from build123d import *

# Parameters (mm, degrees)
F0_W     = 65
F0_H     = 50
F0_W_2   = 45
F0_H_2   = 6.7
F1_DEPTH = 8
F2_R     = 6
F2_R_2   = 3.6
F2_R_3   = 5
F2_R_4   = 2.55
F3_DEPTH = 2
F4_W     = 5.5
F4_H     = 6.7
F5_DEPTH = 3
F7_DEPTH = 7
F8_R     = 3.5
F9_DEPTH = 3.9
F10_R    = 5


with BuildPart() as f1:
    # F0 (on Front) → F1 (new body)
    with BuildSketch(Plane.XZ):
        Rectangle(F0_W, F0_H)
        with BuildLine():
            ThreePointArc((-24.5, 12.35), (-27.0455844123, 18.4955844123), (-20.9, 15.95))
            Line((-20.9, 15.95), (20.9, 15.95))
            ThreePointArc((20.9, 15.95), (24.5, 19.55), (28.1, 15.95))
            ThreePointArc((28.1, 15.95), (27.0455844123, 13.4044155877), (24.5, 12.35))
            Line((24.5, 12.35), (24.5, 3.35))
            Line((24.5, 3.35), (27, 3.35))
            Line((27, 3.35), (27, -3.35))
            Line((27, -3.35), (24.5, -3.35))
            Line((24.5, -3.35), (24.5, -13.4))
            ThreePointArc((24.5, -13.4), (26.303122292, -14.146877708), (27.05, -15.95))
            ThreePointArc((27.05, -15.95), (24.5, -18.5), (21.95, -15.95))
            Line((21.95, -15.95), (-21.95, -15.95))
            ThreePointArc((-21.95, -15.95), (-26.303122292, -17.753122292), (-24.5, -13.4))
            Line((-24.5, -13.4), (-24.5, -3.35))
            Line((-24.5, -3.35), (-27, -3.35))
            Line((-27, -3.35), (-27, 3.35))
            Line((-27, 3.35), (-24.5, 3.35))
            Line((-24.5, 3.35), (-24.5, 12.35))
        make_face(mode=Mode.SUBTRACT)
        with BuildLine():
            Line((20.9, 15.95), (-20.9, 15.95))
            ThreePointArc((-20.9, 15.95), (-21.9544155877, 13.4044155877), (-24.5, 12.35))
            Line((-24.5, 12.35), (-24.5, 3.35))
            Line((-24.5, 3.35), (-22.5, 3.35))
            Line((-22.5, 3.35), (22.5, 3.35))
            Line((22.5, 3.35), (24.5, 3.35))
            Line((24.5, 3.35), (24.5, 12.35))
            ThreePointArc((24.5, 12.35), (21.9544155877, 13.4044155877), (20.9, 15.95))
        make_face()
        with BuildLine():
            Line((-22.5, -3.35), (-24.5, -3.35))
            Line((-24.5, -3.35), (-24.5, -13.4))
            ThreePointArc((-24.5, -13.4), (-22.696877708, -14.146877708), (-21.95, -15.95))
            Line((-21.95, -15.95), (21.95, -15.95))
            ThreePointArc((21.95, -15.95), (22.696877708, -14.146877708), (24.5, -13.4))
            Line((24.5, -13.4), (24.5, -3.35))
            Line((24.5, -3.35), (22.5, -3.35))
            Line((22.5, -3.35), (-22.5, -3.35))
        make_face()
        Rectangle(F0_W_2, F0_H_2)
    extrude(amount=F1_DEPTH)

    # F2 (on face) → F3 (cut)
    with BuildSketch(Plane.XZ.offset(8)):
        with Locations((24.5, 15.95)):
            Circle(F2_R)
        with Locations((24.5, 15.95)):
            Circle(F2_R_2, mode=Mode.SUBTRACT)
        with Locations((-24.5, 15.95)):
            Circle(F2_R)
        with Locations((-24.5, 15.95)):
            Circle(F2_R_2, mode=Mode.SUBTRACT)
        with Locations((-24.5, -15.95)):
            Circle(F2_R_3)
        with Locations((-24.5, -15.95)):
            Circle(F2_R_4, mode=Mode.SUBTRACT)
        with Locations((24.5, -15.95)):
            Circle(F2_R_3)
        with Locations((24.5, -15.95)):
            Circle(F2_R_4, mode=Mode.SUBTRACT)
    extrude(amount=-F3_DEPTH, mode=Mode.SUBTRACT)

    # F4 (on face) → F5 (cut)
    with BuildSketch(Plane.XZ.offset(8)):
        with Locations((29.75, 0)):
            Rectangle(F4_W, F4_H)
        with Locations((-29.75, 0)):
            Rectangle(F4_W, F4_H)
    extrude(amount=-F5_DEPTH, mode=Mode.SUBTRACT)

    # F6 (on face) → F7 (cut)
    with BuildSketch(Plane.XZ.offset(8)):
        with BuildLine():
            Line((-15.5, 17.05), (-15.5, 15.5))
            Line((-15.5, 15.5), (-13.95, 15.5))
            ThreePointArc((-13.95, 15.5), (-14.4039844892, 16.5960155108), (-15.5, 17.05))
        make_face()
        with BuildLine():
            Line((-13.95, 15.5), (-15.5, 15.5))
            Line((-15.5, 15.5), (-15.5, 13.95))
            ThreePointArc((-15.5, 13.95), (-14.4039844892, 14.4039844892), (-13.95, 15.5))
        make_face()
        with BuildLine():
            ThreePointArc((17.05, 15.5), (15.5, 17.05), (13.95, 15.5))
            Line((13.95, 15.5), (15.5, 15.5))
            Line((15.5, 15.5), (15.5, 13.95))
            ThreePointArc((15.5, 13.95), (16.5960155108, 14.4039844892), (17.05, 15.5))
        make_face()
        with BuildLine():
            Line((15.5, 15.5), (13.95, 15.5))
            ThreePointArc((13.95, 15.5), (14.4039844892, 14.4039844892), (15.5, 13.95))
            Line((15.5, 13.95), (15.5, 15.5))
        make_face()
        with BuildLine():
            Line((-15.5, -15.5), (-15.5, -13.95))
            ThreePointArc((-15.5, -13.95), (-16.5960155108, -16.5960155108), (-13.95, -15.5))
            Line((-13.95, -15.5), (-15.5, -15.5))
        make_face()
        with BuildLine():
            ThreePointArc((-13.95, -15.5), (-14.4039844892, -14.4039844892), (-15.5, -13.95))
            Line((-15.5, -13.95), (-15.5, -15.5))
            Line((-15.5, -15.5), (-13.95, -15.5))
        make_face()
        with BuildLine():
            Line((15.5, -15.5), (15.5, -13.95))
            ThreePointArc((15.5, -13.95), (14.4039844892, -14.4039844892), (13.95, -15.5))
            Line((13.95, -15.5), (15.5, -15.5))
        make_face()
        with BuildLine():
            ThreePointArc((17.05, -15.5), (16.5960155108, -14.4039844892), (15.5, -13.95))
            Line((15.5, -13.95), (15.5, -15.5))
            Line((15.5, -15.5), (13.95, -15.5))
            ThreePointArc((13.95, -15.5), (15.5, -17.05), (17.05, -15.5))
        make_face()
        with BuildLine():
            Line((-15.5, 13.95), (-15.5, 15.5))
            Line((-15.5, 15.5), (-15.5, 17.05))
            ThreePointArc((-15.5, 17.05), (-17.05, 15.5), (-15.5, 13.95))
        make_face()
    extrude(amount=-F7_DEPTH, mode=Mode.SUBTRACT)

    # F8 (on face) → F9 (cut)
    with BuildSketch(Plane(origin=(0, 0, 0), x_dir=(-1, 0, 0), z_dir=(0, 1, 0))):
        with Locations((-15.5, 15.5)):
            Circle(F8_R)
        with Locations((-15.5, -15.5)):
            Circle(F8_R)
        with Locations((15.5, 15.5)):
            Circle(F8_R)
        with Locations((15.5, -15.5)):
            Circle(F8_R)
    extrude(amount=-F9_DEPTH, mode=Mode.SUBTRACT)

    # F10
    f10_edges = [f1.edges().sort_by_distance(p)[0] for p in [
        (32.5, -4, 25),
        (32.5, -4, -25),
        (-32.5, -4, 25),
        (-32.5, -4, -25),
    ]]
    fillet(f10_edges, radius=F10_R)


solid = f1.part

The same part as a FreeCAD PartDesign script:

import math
import FreeCAD as App
import Part
import Sketcher

V = App.Vector


def edges_at(feature, points):
    """Names of the edges that pass closest to the given points."""
    edges = feature.Shape.Edges
    near = lambda p: min(range(len(edges)), key=lambda i: edges[i].distToShape(Part.Vertex(*p))[0])
    return sorted({f"Edge{near(p) + 1}" for p in points})

doc = App.newDocument("Part")
body = doc.addObject("PartDesign::Body", "Body")

# Sketch on XZ plane
sketch1 = body.newObject("Sketcher::SketchObject", "Sketch")
sketch1.AttachmentSupport = (doc.getObject("XZ_Plane"), [""])
sketch1.MapMode = "FlatFace"
sketch1.addGeometry([
    Part.LineSegment(V(-32.5, 25, 0), V(-32.5, -25, 0)),  # 0
    Part.LineSegment(V(-32.5, -25, 0), V(32.5, -25, 0)),  # 1
    Part.LineSegment(V(32.5, -25, 0), V(32.5, 25, 0)),  # 2
    Part.LineSegment(V(32.5, 25, 0), V(-32.5, 25, 0)),  # 3
    Part.ArcOfCircle(Part.Circle(V(-24.5, -15.95, 0), V(0, 0, 1), 2.55), math.radians(90), math.radians(360)),  # 4
    Part.ArcOfCircle(Part.Circle(V(-24.5, -15.95, 0), V(0, 0, 1), 2.55), math.radians(0), math.radians(90)),  # 5
    Part.ArcOfCircle(Part.Circle(V(24.5, -15.95, 0), V(0, 0, 1), 2.55), math.radians(0), math.radians(90)),  # 6
    Part.ArcOfCircle(Part.Circle(V(24.5, -15.95, 0), V(0, 0, 1), 2.55), math.radians(180), math.radians(360)),  # 7
    Part.ArcOfCircle(Part.Circle(V(24.5, -15.95, 0), V(0, 0, 1), 2.55), math.radians(90), math.radians(180)),  # 8
    Part.LineSegment(V(-27, -3.35, 0), V(-27, 3.35, 0)),  # 9
    Part.LineSegment(V(-27, 3.35, 0), V(-22.5, 3.35, 0)),  # 10
    Part.LineSegment(V(-22.5, 3.35, 0), V(-22.5, -3.35, 0)),  # 11
    Part.LineSegment(V(-22.5, -3.35, 0), V(-27, -3.35, 0)),  # 12
    Part.LineSegment(V(27, -3.35, 0), V(22.5, -3.35, 0)),  # 13
    Part.LineSegment(V(22.5, -3.35, 0), V(22.5, 3.35, 0)),  # 14
    Part.LineSegment(V(22.5, 3.35, 0), V(27, 3.35, 0)),  # 15
    Part.LineSegment(V(27, 3.35, 0), V(27, -3.35, 0)),  # 16
    Part.ArcOfCircle(Part.Circle(V(-24.5, 15.95, 0), V(0, 0, 1), 3.6), math.radians(0), math.radians(270)),  # 17
    Part.ArcOfCircle(Part.Circle(V(-24.5, 15.95, 0), V(0, 0, 1), 3.6), math.radians(-90), math.radians(0)),  # 18
    Part.ArcOfCircle(Part.Circle(V(24.5, 15.95, 0), V(0, 0, 1), 3.6), math.radians(-90), math.radians(0)),  # 19
    Part.ArcOfCircle(Part.Circle(V(24.5, 15.95, 0), V(0, 0, 1), 3.6), math.radians(180), math.radians(270)),  # 20
    Part.ArcOfCircle(Part.Circle(V(24.5, 15.95, 0), V(0, 0, 1), 3.6), math.radians(0), math.radians(180)),  # 21
], False)
sketch1.addConstraint([
    Sketcher.Constraint("Coincident", 0, 2, 1, 1),
    Sketcher.Constraint("Coincident", 1, 2, 2, 1),
    Sketcher.Constraint("Coincident", 2, 2, 3, 1),
    Sketcher.Constraint("Coincident", 3, 2, 0, 1),
    Sketcher.Constraint("Tangent", 4, 1, 5, 2),
    Sketcher.Constraint("Coincident", 5, 1, 4, 2),
    Sketcher.Constraint("Tangent", 6, 1, 7, 2),
    Sketcher.Constraint("Tangent", 7, 1, 8, 2),
    Sketcher.Constraint("Tangent", 8, 1, 6, 2),
    Sketcher.Constraint("Coincident", 9, 2, 10, 1),
    Sketcher.Constraint("Coincident", 10, 2, 11, 1),
    Sketcher.Constraint("Coincident", 11, 2, 12, 1),
    Sketcher.Constraint("Coincident", 12, 2, 9, 1),
    Sketcher.Constraint("Coincident", 13, 2, 14, 1),
    Sketcher.Constraint("Coincident", 14, 2, 15, 1),
    Sketcher.Constraint("Coincident", 15, 2, 16, 1),
    Sketcher.Constraint("Coincident", 16, 2, 13, 1),
    Sketcher.Constraint("Tangent", 17, 1, 18, 2),
    Sketcher.Constraint("Coincident", 18, 1, 17, 2),
    Sketcher.Constraint("Tangent", 19, 1, 20, 2),
    Sketcher.Constraint("Tangent", 20, 1, 21, 2),
    Sketcher.Constraint("Tangent", 21, 1, 19, 2),
    Sketcher.Constraint("Vertical", 0),
    Sketcher.Constraint("Horizontal", 1),
    Sketcher.Constraint("Vertical", 2),
    Sketcher.Constraint("Horizontal", 3),
    Sketcher.Constraint("Vertical", 9),
    Sketcher.Constraint("Horizontal", 10),
    Sketcher.Constraint("Vertical", 11),
    Sketcher.Constraint("Horizontal", 12),
    Sketcher.Constraint("Horizontal", 13),
    Sketcher.Constraint("Vertical", 14),
    Sketcher.Constraint("Horizontal", 15),
    Sketcher.Constraint("Vertical", 16),
    Sketcher.Constraint("Equal", 5, 6),
    Sketcher.Constraint("Equal", 18, 19),
    Sketcher.Constraint("Symmetric", 6, 3, 17, 3, -1, 1),
    Sketcher.Constraint("Symmetric", 4, 3, 19, 3, -1, 1),
    Sketcher.Constraint("Symmetric", 0, 2, 2, 2, -1, 1),
    Sketcher.Constraint("Symmetric", 10, 2, 13, 2, -1, 1),
    Sketcher.Constraint("Symmetric", 12, 2, 15, 2, -1, 1),
    Sketcher.Constraint("Symmetric", 4, 3, 6, 3, -2),
    Sketcher.Constraint("Horizontal", 8, 3, 5, 1),
    Sketcher.Constraint("Horizontal", 5, 1, 6, 1),
    Sketcher.Constraint("Horizontal", 6, 1, 7, 1),
    Sketcher.Constraint("Horizontal", 12, 2, 13, 2),
    Sketcher.Constraint("Horizontal", 21, 3, 17, 1),
    Sketcher.Constraint("Horizontal", 17, 1, 20, 1),
    Sketcher.Constraint("Horizontal", 20, 1, 21, 1),
    Sketcher.Constraint("Vertical", 18, 3, 4, 1),
    Sketcher.Constraint("Vertical", 21, 3, 8, 1),
    Sketcher.Constraint("Vertical", 4, 1, 18, 1),
    Sketcher.Constraint("Vertical", 8, 1, 19, 1),
    Sketcher.Constraint("Radius", 17, 3.6),
    Sketcher.Constraint("DistanceX", 1, 1, 1, 2, 65.0),
    Sketcher.Constraint("DistanceY", 0, 2, 0, 1, 50.0),
    Sketcher.Constraint("Radius", 4, 2.55),
    Sketcher.Constraint("DistanceX", 10, 1, 10, 2, 4.5),
    Sketcher.Constraint("DistanceY", 9, 1, 9, 2, 6.7),
    Sketcher.Constraint("DistanceX", 9, 2, -1, 1, 27.0),
    Sketcher.Constraint("DistanceX", 4, 3, 6, 3, 49.0),
    Sketcher.Constraint("DistanceY", 10, 2, 18, 1, 9.0),
])
pad1 = body.newObject("PartDesign::Pad", "Pad")
pad1.Profile = sketch1
pad1.Length = 8

# Sketch on XZ plane
sketch2 = body.newObject("Sketcher::SketchObject", "Sketch001")
sketch2.AttachmentSupport = (doc.getObject("XZ_Plane"), [""])
sketch2.MapMode = "FlatFace"
sketch2.AttachmentOffset = App.Placement(V(0, 0, 8), App.Rotation())
sketch2.addGeometry([
    Part.Circle(V(24.5, 15.95, 0), V(0, 0, 1), 6),  # 0
    Part.Circle(V(24.5, 15.95, 0), V(0, 0, 1), 3.6),  # 1
    Part.Circle(V(-24.5, 15.95, 0), V(0, 0, 1), 6),  # 2
    Part.Circle(V(-24.5, 15.95, 0), V(0, 0, 1), 3.6),  # 3
    Part.Circle(V(-24.5, -15.95, 0), V(0, 0, 1), 5),  # 4
    Part.Circle(V(-24.5, -15.95, 0), V(0, 0, 1), 2.55),  # 5
    Part.Circle(V(24.5, -15.95, 0), V(0, 0, 1), 5),  # 6
    Part.Circle(V(24.5, -15.95, 0), V(0, 0, 1), 2.55),  # 7
], False)
sketch2.addConstraint([
    Sketcher.Constraint("Coincident", 1, 3, 0, 3),
    Sketcher.Constraint("Coincident", 3, 3, 2, 3),
    Sketcher.Constraint("Coincident", 5, 3, 4, 3),
    Sketcher.Constraint("Coincident", 7, 3, 6, 3),
    Sketcher.Constraint("Equal", 0, 2),
    Sketcher.Constraint("Equal", 1, 3),
    Sketcher.Constraint("Equal", 4, 6),
    Sketcher.Constraint("Equal", 5, 7),
    Sketcher.Constraint("Symmetric", 0, 3, 4, 3, -1, 1),
    Sketcher.Constraint("Symmetric", 2, 3, 6, 3, -1, 1),
    Sketcher.Constraint("Symmetric", 0, 3, 2, 3, -2),
    Sketcher.Constraint("Diameter", 0, 12.0),
    Sketcher.Constraint("Diameter", 4, 10.0),
    Sketcher.Constraint("Diameter", 1, 7.2),
    Sketcher.Constraint("Diameter", 5, 5.1),
    Sketcher.Constraint("DistanceX", 2, 3, 0, 3, 49.0),
    Sketcher.Constraint("DistanceY", 4, 3, 2, 3, 31.9),
])
pocket1 = body.newObject("PartDesign::Pocket", "Pocket")
pocket1.Profile = sketch2
pocket1.Length = 2

# Sketch on XZ plane
sketch3 = body.newObject("Sketcher::SketchObject", "Sketch002")
sketch3.AttachmentSupport = (doc.getObject("XZ_Plane"), [""])
sketch3.MapMode = "FlatFace"
sketch3.AttachmentOffset = App.Placement(V(0, 0, 8), App.Rotation())
sketch3.addGeometry([
    Part.LineSegment(V(27, 3.35, 0), V(27, -3.35, 0)),  # 0
    Part.LineSegment(V(27, -3.35, 0), V(32.5, -3.35, 0)),  # 1
    Part.LineSegment(V(32.5, -3.35, 0), V(32.5, 3.35, 0)),  # 2
    Part.LineSegment(V(32.5, 3.35, 0), V(27, 3.35, 0)),  # 3
    Part.LineSegment(V(-32.5, 3.35, 0), V(-32.5, -3.35, 0)),  # 4
    Part.LineSegment(V(-32.5, -3.35, 0), V(-27, -3.35, 0)),  # 5
    Part.LineSegment(V(-27, -3.35, 0), V(-27, 3.35, 0)),  # 6
    Part.LineSegment(V(-27, 3.35, 0), V(-32.5, 3.35, 0)),  # 7
], False)
sketch3.addConstraint([
    Sketcher.Constraint("Coincident", 0, 2, 1, 1),
    Sketcher.Constraint("Coincident", 1, 2, 2, 1),
    Sketcher.Constraint("Coincident", 2, 2, 3, 1),
    Sketcher.Constraint("Coincident", 3, 2, 0, 1),
    Sketcher.Constraint("Coincident", 4, 2, 5, 1),
    Sketcher.Constraint("Coincident", 5, 2, 6, 1),
    Sketcher.Constraint("Coincident", 6, 2, 7, 1),
    Sketcher.Constraint("Coincident", 7, 2, 4, 1),
    Sketcher.Constraint("Vertical", 0),
    Sketcher.Constraint("Horizontal", 1),
    Sketcher.Constraint("Vertical", 2),
    Sketcher.Constraint("Horizontal", 3),
    Sketcher.Constraint("Vertical", 4),
    Sketcher.Constraint("Horizontal", 5),
    Sketcher.Constraint("Vertical", 6),
    Sketcher.Constraint("Horizontal", 7),
    Sketcher.Constraint("Symmetric", 2, 2, 4, 2, -1, 1),
    Sketcher.Constraint("Symmetric", 0, 2, 6, 2, -1, 1),
    Sketcher.Constraint("Horizontal", 1, 2, 4, 2),
    Sketcher.Constraint("DistanceX", 1, 1, 1, 2, 5.5),
    Sketcher.Constraint("DistanceY", 0, 2, 0, 1, 6.7),
    Sketcher.Constraint("DistanceX", -1, 1, 0, 2, 27.0),
])
pocket2 = body.newObject("PartDesign::Pocket", "Pocket001")
pocket2.Profile = sketch3
pocket2.Length = 3

# Sketch on XZ plane
sketch4 = body.newObject("Sketcher::SketchObject", "Sketch003")
sketch4.AttachmentSupport = (doc.getObject("XZ_Plane"), [""])
sketch4.MapMode = "FlatFace"
sketch4.AttachmentOffset = App.Placement(V(0, 0, 8), App.Rotation())
sketch4.addGeometry([
    Part.ArcOfCircle(Part.Circle(V(-15.5, 15.5, 0), V(0, 0, 1), 1.55), math.radians(-90), math.radians(0)),  # 0
    Part.ArcOfCircle(Part.Circle(V(-15.5, 15.5, 0), V(0, 0, 1), 1.55), math.radians(0), math.radians(90)),  # 1
    Part.ArcOfCircle(Part.Circle(V(-15.5, 15.5, 0), V(0, 0, 1), 1.55), math.radians(90), math.radians(270)),  # 2
    Part.ArcOfCircle(Part.Circle(V(15.5, 15.5, 0), V(0, 0, 1), 1.55), math.radians(0), math.radians(180)),  # 3
    Part.ArcOfCircle(Part.Circle(V(15.5, 15.5, 0), V(0, 0, 1), 1.55), math.radians(180), math.radians(270)),  # 4
    Part.ArcOfCircle(Part.Circle(V(15.5, 15.5, 0), V(0, 0, 1), 1.55), math.radians(-90), math.radians(0)),  # 5
    Part.ArcOfCircle(Part.Circle(V(-15.5, -15.5, 0), V(0, 0, 1), 1.55), math.radians(90), math.radians(360)),  # 6
    Part.ArcOfCircle(Part.Circle(V(-15.5, -15.5, 0), V(0, 0, 1), 1.55), math.radians(0), math.radians(90)),  # 7
    Part.ArcOfCircle(Part.Circle(V(15.5, -15.5, 0), V(0, 0, 1), 1.55), math.radians(90), math.radians(180)),  # 8
    Part.ArcOfCircle(Part.Circle(V(15.5, -15.5, 0), V(0, 0, 1), 1.55), math.radians(180), math.radians(360)),  # 9
    Part.ArcOfCircle(Part.Circle(V(15.5, -15.5, 0), V(0, 0, 1), 1.55), math.radians(0), math.radians(90)),  # 10
], False)
sketch4.addConstraint([
    Sketcher.Constraint("Tangent", 0, 2, 1, 1),
    Sketcher.Constraint("Tangent", 1, 2, 2, 1),
    Sketcher.Constraint("Tangent", 2, 2, 0, 1),
    Sketcher.Constraint("Tangent", 3, 2, 4, 1),
    Sketcher.Constraint("Tangent", 4, 2, 5, 1),
    Sketcher.Constraint("Tangent", 5, 2, 3, 1),
    Sketcher.Constraint("Tangent", 6, 1, 7, 2),
    Sketcher.Constraint("Coincident", 7, 1, 6, 2),
    Sketcher.Constraint("Tangent", 8, 2, 9, 1),
    Sketcher.Constraint("Tangent", 9, 2, 10, 1),
    Sketcher.Constraint("Tangent", 10, 2, 8, 1),
    Sketcher.Constraint("Equal", 2, 3),
    Sketcher.Constraint("Equal", 5, 6),
    Sketcher.Constraint("Equal", 7, 8),
    Sketcher.Constraint("Symmetric", 3, 3, 6, 3, -1, 1),
    Sketcher.Constraint("Symmetric", 0, 3, 8, 3, -1, 1),
    Sketcher.Constraint("Symmetric", 0, 3, 3, 3, -2),
    Sketcher.Constraint("Horizontal", 5, 3, 0, 2),
    Sketcher.Constraint("Horizontal", 0, 2, 3, 2),
    Sketcher.Constraint("Horizontal", 3, 2, 5, 2),
    Sketcher.Constraint("Horizontal", 10, 3, 7, 1),
    Sketcher.Constraint("Horizontal", 7, 1, 8, 2),
    Sketcher.Constraint("Horizontal", 8, 2, 9, 2),
    Sketcher.Constraint("Vertical", 7, 3, 1, 2),
    Sketcher.Constraint("Vertical", 1, 2, 2, 2),
    Sketcher.Constraint("Vertical", 10, 3, 4, 2),
    Sketcher.Constraint("Vertical", 2, 2, 6, 1),
    Sketcher.Constraint("Vertical", 4, 2, 10, 2),
    Sketcher.Constraint("Radius", 0, 1.55),
    Sketcher.Constraint("DistanceX", 0, 3, 3, 3, 31.0),
    Sketcher.Constraint("DistanceY", 6, 3, 0, 3, 31.0),
])
pocket3 = body.newObject("PartDesign::Pocket", "Pocket002")
pocket3.Profile = sketch4
pocket3.Length = 7

# Sketch on XZ plane
sketch5 = body.newObject("Sketcher::SketchObject", "Sketch004")
sketch5.AttachmentSupport = (doc.getObject("XZ_Plane"), [""])
sketch5.MapMode = "FlatFace"
sketch5.addGeometry([
    Part.Circle(V(15.5, 15.5, 0), V(0, 0, 1), 3.5),
    Part.Circle(V(15.5, -15.5, 0), V(0, 0, 1), 3.5),
    Part.Circle(V(-15.5, 15.5, 0), V(0, 0, 1), 3.5),
    Part.Circle(V(-15.5, -15.5, 0), V(0, 0, 1), 3.5),
], False)
sketch5.addConstraint([
    Sketcher.Constraint("Equal", 0, 1),
    Sketcher.Constraint("Equal", 1, 2),
    Sketcher.Constraint("Equal", 2, 3),
    Sketcher.Constraint("Symmetric", 1, 3, 2, 3, -1, 1),
    Sketcher.Constraint("Symmetric", 0, 3, 3, 3, -1, 1),
    Sketcher.Constraint("Symmetric", 0, 3, 2, 3, -2),
    Sketcher.Constraint("Diameter", 0, 7.0),
    Sketcher.Constraint("DistanceY", 1, 3, 0, 3, 31.0),
    Sketcher.Constraint("DistanceX", 2, 3, 0, 3, 31.0),
])
pocket4 = body.newObject("PartDesign::Pocket", "Pocket003")
pocket4.Profile = sketch5
pocket4.Length = 3.9
pocket4.Reversed = True
doc.recompute()

fillet = body.newObject("PartDesign::Fillet", "Fillet")
fillet.Base = (pocket4, edges_at(pocket4, [
    (32.5, -4, 25),
    (32.5, -4, -25),
    (-32.5, -4, 25),
    (-32.5, -4, -25),
]))
fillet.Radius = 5

doc.recompute()
